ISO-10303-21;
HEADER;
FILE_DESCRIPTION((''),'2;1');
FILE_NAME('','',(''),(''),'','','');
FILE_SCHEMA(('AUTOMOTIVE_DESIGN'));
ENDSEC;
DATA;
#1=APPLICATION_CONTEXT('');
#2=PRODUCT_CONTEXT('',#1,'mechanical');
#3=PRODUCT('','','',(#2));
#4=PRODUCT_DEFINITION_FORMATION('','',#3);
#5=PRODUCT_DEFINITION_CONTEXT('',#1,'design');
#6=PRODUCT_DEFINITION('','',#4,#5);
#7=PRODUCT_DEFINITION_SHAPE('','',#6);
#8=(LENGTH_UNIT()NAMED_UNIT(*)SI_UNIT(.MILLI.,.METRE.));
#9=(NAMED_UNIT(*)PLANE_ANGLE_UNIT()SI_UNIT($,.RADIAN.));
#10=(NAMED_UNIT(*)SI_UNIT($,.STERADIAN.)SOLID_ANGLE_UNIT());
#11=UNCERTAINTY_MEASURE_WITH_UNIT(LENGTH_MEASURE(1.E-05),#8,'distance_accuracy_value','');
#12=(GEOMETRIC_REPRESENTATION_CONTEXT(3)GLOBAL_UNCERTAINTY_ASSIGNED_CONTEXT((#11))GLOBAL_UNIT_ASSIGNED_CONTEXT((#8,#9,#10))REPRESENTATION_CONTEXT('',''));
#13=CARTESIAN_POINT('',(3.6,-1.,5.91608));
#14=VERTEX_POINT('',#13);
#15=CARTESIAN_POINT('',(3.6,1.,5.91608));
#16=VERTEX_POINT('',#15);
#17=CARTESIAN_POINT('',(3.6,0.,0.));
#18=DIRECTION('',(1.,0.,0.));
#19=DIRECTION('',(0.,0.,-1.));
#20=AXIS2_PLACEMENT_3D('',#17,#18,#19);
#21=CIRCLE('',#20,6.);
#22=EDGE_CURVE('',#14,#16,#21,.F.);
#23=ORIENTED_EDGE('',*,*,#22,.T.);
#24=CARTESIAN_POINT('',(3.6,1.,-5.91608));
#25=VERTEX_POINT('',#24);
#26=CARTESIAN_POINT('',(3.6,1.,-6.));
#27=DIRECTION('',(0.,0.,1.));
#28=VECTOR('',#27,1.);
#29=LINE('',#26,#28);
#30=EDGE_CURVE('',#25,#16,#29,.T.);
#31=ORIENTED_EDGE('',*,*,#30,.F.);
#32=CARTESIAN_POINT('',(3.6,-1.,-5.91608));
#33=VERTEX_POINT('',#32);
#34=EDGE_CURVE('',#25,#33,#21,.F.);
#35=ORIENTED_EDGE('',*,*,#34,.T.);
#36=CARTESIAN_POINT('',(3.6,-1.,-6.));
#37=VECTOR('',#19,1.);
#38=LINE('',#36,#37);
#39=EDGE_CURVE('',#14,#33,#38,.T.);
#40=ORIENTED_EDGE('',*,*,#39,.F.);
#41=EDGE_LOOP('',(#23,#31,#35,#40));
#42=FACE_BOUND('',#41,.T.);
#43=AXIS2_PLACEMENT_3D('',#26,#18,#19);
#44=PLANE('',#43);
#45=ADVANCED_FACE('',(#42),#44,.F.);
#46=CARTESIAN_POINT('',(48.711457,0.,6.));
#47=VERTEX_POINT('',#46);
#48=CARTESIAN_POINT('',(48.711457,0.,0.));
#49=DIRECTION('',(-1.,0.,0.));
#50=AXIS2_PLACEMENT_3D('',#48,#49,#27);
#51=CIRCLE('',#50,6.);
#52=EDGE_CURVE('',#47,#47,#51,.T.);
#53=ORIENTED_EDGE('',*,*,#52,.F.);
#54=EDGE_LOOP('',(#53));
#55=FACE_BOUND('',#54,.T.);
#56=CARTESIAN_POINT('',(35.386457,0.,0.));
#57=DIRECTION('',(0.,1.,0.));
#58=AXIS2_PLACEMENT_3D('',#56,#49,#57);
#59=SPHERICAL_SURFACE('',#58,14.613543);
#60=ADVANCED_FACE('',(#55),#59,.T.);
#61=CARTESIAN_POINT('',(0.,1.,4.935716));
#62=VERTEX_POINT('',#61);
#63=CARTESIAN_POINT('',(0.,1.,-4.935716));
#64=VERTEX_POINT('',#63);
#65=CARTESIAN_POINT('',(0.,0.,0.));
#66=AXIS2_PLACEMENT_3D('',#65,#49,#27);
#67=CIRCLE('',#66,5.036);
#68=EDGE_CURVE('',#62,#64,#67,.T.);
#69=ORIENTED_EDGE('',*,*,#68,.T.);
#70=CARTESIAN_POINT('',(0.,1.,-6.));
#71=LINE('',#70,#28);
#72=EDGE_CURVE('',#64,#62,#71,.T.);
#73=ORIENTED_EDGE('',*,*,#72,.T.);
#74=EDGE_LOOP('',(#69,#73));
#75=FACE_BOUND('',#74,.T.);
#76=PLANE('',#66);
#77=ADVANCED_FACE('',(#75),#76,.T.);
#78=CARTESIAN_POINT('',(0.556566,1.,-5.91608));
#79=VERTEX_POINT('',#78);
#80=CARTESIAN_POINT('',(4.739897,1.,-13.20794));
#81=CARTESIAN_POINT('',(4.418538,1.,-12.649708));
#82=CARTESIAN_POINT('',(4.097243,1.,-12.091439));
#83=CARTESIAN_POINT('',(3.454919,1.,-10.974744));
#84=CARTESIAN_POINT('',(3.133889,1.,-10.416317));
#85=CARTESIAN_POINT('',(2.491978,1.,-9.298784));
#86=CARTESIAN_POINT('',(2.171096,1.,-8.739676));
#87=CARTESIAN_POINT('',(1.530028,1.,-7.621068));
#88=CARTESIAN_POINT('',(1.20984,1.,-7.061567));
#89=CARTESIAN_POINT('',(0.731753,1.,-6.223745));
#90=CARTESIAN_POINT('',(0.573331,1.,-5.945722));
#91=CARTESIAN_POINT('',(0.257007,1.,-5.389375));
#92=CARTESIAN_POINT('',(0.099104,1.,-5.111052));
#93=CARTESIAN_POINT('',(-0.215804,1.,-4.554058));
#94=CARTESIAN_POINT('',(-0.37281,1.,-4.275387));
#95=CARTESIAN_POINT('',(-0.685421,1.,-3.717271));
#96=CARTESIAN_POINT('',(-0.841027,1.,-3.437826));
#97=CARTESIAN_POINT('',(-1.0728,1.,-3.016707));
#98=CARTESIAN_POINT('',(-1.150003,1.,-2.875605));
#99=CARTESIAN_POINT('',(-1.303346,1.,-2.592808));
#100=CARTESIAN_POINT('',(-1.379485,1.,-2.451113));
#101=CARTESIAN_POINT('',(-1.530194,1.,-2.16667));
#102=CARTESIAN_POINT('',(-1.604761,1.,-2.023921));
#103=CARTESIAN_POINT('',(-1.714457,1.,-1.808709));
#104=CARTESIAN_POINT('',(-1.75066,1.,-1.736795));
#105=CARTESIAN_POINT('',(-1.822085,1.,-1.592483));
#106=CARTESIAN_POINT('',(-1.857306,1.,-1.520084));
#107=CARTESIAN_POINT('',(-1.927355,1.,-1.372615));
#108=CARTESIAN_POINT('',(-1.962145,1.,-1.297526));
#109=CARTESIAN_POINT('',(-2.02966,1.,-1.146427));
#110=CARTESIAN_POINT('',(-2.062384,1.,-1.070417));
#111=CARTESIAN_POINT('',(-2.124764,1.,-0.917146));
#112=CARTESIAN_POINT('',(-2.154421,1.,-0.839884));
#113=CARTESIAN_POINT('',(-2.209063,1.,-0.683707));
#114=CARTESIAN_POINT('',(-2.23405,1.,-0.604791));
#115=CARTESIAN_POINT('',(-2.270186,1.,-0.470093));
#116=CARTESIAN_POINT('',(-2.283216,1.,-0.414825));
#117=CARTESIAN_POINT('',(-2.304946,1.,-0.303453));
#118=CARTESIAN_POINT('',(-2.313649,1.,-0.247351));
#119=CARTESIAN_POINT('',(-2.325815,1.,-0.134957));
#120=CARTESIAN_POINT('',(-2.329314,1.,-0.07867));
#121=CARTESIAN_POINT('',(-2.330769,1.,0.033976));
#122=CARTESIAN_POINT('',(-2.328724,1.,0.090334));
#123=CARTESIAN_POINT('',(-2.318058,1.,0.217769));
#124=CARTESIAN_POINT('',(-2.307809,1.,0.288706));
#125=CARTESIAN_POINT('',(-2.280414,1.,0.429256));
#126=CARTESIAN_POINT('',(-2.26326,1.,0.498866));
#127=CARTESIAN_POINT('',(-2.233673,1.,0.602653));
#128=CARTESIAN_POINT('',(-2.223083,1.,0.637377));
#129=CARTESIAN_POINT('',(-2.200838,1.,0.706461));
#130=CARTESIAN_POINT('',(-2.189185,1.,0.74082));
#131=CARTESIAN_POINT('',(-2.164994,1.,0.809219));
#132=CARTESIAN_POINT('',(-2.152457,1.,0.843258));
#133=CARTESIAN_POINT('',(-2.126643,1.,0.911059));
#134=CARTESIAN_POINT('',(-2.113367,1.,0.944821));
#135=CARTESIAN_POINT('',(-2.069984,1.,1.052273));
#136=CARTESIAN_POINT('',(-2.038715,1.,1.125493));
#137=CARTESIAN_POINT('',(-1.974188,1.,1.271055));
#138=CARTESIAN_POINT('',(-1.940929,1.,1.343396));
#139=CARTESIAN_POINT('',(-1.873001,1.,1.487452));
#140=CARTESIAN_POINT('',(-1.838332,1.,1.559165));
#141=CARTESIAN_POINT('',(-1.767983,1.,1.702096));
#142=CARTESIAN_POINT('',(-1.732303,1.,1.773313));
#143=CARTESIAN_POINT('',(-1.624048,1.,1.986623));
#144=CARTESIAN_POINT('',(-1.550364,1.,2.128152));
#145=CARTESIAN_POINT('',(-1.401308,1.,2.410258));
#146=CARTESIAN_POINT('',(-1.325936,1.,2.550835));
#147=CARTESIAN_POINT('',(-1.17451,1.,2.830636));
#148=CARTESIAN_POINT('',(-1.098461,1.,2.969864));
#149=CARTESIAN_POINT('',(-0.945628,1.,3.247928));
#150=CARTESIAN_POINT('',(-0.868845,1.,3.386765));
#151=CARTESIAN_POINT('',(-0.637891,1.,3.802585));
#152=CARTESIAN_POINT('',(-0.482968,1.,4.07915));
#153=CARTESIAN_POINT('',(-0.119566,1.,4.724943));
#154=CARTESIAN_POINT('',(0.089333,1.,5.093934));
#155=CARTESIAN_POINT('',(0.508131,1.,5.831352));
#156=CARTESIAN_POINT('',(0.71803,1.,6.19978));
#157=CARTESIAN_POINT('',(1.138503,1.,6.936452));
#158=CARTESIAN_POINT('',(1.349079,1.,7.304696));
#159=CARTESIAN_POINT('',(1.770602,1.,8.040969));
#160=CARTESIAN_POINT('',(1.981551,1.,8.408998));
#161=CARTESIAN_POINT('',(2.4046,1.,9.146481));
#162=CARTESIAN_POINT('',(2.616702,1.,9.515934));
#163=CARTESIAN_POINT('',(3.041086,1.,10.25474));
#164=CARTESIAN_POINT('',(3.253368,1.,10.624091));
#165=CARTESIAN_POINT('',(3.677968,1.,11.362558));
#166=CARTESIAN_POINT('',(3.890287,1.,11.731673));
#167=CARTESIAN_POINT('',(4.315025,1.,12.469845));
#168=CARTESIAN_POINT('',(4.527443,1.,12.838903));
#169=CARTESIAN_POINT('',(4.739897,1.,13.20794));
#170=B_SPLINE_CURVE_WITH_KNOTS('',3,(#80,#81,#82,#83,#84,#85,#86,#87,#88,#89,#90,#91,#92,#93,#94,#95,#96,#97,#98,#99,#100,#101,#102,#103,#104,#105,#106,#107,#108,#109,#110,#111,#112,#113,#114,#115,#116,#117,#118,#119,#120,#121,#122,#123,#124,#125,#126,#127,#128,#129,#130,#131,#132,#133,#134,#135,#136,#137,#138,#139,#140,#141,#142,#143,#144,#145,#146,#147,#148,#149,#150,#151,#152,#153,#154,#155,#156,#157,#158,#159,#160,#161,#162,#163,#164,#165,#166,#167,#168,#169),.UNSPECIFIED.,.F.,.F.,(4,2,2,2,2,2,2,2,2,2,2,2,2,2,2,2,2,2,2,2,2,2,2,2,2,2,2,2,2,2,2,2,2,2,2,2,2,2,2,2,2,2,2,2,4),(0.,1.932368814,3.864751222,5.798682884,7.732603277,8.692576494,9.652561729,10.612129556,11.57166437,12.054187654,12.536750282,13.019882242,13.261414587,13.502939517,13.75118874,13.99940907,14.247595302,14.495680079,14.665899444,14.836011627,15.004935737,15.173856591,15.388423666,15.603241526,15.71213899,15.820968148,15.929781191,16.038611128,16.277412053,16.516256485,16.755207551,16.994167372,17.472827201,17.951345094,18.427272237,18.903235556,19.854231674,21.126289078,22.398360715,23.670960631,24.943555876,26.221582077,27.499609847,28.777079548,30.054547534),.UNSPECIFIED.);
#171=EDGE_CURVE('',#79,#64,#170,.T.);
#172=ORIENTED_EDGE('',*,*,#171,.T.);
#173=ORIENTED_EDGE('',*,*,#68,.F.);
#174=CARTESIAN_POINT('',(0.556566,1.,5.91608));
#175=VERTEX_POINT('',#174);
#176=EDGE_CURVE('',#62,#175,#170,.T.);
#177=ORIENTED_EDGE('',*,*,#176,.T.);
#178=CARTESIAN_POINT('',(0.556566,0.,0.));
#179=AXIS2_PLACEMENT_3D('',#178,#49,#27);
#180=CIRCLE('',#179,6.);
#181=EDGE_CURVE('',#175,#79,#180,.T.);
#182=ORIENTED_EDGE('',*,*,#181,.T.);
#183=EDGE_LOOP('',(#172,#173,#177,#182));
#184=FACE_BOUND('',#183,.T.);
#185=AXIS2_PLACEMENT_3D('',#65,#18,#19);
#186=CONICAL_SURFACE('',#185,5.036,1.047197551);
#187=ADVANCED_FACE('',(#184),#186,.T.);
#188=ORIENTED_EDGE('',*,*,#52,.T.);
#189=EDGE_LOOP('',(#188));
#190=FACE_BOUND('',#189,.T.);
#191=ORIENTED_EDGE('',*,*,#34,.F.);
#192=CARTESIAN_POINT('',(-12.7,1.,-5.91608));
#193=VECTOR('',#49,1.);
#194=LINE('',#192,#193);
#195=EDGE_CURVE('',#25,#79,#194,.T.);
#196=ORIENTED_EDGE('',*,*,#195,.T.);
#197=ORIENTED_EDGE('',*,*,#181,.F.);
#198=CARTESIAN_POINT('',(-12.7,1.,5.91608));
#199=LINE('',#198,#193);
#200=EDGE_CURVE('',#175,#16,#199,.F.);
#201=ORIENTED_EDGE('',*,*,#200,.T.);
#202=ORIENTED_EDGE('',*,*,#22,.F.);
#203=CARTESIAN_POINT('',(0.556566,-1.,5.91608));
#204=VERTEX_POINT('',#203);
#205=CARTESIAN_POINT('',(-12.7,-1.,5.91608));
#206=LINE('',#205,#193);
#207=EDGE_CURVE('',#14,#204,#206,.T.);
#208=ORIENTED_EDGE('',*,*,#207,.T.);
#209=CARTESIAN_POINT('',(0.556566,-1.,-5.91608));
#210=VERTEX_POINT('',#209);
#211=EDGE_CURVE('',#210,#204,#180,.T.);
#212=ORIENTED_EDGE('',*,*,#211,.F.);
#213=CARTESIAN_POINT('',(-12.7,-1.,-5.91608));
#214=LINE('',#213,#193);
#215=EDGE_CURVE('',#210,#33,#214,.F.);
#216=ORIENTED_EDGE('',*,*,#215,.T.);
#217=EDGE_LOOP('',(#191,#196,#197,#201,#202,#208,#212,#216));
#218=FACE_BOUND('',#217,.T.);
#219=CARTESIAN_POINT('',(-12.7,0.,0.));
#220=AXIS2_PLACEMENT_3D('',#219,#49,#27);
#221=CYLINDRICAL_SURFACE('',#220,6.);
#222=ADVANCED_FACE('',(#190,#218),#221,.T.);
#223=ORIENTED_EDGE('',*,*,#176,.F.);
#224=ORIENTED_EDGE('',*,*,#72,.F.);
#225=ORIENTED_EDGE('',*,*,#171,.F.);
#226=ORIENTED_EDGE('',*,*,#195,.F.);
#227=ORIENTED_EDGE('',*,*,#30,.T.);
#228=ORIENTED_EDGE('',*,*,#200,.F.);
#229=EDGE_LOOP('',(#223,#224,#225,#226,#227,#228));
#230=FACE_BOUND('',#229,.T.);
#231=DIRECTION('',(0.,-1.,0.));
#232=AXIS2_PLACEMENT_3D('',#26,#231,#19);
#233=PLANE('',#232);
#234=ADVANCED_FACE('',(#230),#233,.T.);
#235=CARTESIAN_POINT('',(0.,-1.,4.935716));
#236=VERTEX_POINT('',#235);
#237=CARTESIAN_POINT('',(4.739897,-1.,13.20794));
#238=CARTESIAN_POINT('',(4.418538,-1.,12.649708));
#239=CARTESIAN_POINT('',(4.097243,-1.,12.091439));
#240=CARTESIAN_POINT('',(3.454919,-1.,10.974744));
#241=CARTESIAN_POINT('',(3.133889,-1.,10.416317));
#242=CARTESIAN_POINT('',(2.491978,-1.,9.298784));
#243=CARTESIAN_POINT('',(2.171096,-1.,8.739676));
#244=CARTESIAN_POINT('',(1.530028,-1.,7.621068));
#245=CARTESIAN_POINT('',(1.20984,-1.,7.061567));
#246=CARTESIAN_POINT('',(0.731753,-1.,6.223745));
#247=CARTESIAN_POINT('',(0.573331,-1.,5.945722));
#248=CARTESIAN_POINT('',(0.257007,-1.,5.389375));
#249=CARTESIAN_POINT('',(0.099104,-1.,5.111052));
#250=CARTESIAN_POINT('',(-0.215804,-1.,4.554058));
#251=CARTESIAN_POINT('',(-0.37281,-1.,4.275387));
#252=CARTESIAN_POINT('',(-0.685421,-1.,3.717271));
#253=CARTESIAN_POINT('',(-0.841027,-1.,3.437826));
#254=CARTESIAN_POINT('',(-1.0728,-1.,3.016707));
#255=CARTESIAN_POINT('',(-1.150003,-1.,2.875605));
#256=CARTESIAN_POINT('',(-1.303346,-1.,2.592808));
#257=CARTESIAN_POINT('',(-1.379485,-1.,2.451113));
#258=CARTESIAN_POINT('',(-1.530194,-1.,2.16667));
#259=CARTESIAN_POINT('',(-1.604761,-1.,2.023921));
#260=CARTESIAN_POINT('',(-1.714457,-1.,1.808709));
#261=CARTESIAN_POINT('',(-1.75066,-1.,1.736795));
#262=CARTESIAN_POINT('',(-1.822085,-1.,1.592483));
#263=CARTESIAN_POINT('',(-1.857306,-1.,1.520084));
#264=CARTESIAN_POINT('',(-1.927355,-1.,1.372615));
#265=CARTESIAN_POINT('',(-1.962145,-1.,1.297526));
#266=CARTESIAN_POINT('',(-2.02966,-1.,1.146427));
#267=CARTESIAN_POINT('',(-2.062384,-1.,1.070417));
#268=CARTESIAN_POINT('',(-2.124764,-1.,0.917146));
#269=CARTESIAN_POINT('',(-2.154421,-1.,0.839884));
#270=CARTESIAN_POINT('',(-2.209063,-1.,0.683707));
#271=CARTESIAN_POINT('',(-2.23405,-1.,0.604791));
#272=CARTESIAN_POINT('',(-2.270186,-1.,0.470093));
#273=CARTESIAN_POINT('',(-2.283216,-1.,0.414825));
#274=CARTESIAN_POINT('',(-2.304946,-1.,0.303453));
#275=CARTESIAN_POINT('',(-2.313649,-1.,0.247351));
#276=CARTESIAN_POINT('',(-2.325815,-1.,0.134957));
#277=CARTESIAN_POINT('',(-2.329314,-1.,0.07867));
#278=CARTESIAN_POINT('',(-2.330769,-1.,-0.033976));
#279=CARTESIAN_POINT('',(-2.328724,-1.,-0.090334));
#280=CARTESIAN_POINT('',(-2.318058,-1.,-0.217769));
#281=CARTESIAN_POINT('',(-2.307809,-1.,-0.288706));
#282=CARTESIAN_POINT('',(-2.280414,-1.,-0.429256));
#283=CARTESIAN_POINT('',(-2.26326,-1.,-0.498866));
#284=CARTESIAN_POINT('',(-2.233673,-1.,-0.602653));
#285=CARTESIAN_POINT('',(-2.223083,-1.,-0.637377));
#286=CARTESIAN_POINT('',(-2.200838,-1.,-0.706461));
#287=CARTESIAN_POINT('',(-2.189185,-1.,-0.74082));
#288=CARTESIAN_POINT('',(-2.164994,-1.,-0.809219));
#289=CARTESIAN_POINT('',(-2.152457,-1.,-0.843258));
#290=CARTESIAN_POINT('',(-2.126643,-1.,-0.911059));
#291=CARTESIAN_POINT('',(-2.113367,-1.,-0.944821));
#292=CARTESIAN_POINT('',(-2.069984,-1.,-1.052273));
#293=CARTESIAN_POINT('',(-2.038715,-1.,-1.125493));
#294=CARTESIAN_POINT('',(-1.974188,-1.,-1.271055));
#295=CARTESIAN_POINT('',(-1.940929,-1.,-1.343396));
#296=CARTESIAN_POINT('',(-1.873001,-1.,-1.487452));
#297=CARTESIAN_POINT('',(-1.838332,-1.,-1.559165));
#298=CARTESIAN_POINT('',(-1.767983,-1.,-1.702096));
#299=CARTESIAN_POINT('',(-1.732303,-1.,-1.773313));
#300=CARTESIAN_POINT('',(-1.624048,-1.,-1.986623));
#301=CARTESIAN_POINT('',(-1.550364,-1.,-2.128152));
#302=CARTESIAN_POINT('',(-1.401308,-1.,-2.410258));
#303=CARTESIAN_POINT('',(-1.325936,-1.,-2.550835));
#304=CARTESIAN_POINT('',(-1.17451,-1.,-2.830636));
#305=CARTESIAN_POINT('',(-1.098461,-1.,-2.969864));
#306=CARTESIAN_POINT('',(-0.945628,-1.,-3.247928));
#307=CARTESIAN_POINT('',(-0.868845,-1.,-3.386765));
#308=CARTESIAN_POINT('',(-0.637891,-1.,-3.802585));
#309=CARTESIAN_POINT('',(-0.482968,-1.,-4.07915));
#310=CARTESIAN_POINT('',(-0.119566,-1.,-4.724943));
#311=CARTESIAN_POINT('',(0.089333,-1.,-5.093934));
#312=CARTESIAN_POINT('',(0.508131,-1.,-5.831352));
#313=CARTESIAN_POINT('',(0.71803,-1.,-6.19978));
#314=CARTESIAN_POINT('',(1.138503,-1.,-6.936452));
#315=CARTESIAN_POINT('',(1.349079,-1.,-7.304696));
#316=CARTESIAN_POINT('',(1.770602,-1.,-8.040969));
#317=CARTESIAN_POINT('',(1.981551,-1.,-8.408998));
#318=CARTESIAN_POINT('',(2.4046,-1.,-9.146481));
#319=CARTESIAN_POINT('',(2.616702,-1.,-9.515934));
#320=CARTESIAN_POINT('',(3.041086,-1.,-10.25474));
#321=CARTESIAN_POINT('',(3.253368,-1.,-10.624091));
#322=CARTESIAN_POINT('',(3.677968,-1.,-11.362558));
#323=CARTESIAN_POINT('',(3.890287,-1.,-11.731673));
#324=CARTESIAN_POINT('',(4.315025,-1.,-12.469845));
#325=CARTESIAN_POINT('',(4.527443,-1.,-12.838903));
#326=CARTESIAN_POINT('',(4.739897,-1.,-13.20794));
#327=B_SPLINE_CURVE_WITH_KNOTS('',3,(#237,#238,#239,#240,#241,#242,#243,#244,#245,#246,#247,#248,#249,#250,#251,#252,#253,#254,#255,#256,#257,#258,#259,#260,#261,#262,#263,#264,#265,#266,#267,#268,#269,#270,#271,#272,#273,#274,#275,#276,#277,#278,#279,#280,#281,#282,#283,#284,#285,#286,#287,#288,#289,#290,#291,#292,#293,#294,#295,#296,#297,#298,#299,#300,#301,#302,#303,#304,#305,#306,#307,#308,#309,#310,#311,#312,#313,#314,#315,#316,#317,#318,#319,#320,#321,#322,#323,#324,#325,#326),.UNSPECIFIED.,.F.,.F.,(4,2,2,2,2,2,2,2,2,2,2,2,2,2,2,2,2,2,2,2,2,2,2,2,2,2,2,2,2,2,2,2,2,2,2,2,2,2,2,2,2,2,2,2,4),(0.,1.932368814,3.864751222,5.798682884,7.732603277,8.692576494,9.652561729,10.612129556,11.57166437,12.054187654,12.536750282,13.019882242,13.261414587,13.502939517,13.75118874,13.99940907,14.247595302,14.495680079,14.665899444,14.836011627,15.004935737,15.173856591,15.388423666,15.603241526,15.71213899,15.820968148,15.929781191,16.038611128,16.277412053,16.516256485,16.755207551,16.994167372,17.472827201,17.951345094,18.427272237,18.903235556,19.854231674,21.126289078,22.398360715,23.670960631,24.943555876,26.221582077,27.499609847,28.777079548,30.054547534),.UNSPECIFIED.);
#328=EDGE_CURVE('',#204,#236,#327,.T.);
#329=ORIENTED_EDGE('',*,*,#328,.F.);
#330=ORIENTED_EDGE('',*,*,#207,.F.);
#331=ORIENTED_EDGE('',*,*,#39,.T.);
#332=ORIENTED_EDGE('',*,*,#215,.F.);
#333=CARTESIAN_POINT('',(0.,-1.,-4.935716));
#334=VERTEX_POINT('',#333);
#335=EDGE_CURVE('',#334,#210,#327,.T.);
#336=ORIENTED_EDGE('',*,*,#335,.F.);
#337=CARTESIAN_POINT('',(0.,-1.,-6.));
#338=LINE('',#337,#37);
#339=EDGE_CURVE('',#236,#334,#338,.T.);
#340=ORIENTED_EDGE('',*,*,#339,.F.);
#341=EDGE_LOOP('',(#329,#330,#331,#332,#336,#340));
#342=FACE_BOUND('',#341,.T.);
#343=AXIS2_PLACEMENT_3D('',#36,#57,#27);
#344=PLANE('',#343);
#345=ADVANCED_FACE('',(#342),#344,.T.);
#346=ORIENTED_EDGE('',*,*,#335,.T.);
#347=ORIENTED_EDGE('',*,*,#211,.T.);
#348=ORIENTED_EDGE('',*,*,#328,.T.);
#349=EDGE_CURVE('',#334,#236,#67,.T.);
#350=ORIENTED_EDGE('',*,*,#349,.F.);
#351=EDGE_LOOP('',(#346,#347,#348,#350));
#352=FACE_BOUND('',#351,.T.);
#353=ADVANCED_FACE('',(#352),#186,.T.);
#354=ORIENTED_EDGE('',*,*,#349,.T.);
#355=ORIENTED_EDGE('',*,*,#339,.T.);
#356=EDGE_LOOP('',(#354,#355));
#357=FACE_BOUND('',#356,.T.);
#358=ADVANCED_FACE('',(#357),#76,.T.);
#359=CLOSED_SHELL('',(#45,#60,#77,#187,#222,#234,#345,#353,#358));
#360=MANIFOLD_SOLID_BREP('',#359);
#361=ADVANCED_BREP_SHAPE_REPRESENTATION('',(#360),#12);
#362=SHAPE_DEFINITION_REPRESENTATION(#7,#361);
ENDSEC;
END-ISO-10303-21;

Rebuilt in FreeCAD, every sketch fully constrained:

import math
import FreeCAD as App
import Part
import Sketcher

V = App.Vector
Q = App.Units.Quantity

doc = App.newDocument("Part")
body = doc.addObject("PartDesign::Body", "Body")

sketch1 = body.newObject("Sketcher::SketchObject", "Sketch")
sketch1.AttachmentSupport = (doc.getObject("XY_Plane"), [""])
sketch1.MapMode = "FlatFace"
sketch1.addGeometry([
    Part.LineSegment(V(48.711457, 6, 0), V(0.556566, 6, 0)),
    Part.LineSegment(V(0.556566, 6, 0), V(0, 5.036, 0)),
    Part.LineSegment(V(0, 5.036, 0), V(0, 0, 0)),
    Part.LineSegment(V(0, 0, 0), V(50, 0, 0)),
    Part.ArcOfCircle(Part.Circle(V(35.386458, 0, 0), V(0, 0, 1), 14.613542), math.radians(0), math.radians(24.241153)),
], False)
sketch1.addConstraint([
    Sketcher.Constraint("Coincident", 0, 2, 1, 1),
    Sketcher.Constraint("Coincident", 1, 2, 2, 1),
    Sketcher.Constraint("Coincident", 2, 2, 3, 1),
    Sketcher.Constraint("Coincident", 3, 2, 4, 1),
    Sketcher.Constraint("Coincident", 4, 2, 0, 1),
    Sketcher.Constraint("Horizontal", 0),
    Sketcher.Constraint("Vertical", 2),
    Sketcher.Constraint("Horizontal", 3),
    Sketcher.Constraint("Coincident", 2, 2, -1, 1),
    Sketcher.Constraint("PointOnObject", 4, 3, -1),
    Sketcher.Constraint("DistanceX", 3, 1, 3, 2, 50.0),
    Sketcher.Constraint("Angle", 1, Q("-120 deg")),
    Sketcher.Constraint("DistanceY", -1, 1, 0, 2, 6.0),
    Sketcher.Constraint("DistanceY", 2, 2, 2, 1, 5.036),
    Sketcher.Constraint("Radius", 4, 14.613542),
])
revolution = body.newObject("PartDesign::Revolution", "Revolution")
revolution.Profile = sketch1
revolution.ReferenceAxis = (sketch1, ["H_Axis"])
revolution.Angle = 360

sketch2 = body.newObject("Sketcher::SketchObject", "Sketch001")
sketch2.AttachmentSupport = (doc.getObject("YZ_Plane"), [""])
sketch2.MapMode = "FlatFace"
sketch2.addGeometry([
    Part.LineSegment(V(1, 6, 0), V(-1, 6, 0)),
    Part.LineSegment(V(-1, 6, 0), V(-1, -6, 0)),
    Part.LineSegment(V(-1, -6, 0), V(1, -6, 0)),
    Part.LineSegment(V(1, -6, 0), V(1, 6, 0)),
], False)
sketch2.addConstraint([
    Sketcher.Constraint("Coincident", 0, 2, 1, 1),
    Sketcher.Constraint("Coincident", 1, 2, 2, 1),
    Sketcher.Constraint("Coincident", 2, 2, 3, 1),
    Sketcher.Constraint("Coincident", 3, 2, 0, 1),
    Sketcher.Constraint("Horizontal", 0),
    Sketcher.Constraint("Vertical", 1),
    Sketcher.Constraint("Horizontal", 2),
    Sketcher.Constraint("Vertical", 3),
    Sketcher.Constraint("Symmetric", 0, 2, 2, 2, -1, 1),
    Sketcher.Constraint("DistanceX", 0, 2, 0, 1, 2.0),
    Sketcher.Constraint("DistanceY", 1, 2, 1, 1, 12.0),
])
pocket1 = body.newObject("PartDesign::Pocket", "Pocket")
pocket1.Profile = sketch2
pocket1.Length = 3.6
pocket1.Reversed = True

doc.recompute()
